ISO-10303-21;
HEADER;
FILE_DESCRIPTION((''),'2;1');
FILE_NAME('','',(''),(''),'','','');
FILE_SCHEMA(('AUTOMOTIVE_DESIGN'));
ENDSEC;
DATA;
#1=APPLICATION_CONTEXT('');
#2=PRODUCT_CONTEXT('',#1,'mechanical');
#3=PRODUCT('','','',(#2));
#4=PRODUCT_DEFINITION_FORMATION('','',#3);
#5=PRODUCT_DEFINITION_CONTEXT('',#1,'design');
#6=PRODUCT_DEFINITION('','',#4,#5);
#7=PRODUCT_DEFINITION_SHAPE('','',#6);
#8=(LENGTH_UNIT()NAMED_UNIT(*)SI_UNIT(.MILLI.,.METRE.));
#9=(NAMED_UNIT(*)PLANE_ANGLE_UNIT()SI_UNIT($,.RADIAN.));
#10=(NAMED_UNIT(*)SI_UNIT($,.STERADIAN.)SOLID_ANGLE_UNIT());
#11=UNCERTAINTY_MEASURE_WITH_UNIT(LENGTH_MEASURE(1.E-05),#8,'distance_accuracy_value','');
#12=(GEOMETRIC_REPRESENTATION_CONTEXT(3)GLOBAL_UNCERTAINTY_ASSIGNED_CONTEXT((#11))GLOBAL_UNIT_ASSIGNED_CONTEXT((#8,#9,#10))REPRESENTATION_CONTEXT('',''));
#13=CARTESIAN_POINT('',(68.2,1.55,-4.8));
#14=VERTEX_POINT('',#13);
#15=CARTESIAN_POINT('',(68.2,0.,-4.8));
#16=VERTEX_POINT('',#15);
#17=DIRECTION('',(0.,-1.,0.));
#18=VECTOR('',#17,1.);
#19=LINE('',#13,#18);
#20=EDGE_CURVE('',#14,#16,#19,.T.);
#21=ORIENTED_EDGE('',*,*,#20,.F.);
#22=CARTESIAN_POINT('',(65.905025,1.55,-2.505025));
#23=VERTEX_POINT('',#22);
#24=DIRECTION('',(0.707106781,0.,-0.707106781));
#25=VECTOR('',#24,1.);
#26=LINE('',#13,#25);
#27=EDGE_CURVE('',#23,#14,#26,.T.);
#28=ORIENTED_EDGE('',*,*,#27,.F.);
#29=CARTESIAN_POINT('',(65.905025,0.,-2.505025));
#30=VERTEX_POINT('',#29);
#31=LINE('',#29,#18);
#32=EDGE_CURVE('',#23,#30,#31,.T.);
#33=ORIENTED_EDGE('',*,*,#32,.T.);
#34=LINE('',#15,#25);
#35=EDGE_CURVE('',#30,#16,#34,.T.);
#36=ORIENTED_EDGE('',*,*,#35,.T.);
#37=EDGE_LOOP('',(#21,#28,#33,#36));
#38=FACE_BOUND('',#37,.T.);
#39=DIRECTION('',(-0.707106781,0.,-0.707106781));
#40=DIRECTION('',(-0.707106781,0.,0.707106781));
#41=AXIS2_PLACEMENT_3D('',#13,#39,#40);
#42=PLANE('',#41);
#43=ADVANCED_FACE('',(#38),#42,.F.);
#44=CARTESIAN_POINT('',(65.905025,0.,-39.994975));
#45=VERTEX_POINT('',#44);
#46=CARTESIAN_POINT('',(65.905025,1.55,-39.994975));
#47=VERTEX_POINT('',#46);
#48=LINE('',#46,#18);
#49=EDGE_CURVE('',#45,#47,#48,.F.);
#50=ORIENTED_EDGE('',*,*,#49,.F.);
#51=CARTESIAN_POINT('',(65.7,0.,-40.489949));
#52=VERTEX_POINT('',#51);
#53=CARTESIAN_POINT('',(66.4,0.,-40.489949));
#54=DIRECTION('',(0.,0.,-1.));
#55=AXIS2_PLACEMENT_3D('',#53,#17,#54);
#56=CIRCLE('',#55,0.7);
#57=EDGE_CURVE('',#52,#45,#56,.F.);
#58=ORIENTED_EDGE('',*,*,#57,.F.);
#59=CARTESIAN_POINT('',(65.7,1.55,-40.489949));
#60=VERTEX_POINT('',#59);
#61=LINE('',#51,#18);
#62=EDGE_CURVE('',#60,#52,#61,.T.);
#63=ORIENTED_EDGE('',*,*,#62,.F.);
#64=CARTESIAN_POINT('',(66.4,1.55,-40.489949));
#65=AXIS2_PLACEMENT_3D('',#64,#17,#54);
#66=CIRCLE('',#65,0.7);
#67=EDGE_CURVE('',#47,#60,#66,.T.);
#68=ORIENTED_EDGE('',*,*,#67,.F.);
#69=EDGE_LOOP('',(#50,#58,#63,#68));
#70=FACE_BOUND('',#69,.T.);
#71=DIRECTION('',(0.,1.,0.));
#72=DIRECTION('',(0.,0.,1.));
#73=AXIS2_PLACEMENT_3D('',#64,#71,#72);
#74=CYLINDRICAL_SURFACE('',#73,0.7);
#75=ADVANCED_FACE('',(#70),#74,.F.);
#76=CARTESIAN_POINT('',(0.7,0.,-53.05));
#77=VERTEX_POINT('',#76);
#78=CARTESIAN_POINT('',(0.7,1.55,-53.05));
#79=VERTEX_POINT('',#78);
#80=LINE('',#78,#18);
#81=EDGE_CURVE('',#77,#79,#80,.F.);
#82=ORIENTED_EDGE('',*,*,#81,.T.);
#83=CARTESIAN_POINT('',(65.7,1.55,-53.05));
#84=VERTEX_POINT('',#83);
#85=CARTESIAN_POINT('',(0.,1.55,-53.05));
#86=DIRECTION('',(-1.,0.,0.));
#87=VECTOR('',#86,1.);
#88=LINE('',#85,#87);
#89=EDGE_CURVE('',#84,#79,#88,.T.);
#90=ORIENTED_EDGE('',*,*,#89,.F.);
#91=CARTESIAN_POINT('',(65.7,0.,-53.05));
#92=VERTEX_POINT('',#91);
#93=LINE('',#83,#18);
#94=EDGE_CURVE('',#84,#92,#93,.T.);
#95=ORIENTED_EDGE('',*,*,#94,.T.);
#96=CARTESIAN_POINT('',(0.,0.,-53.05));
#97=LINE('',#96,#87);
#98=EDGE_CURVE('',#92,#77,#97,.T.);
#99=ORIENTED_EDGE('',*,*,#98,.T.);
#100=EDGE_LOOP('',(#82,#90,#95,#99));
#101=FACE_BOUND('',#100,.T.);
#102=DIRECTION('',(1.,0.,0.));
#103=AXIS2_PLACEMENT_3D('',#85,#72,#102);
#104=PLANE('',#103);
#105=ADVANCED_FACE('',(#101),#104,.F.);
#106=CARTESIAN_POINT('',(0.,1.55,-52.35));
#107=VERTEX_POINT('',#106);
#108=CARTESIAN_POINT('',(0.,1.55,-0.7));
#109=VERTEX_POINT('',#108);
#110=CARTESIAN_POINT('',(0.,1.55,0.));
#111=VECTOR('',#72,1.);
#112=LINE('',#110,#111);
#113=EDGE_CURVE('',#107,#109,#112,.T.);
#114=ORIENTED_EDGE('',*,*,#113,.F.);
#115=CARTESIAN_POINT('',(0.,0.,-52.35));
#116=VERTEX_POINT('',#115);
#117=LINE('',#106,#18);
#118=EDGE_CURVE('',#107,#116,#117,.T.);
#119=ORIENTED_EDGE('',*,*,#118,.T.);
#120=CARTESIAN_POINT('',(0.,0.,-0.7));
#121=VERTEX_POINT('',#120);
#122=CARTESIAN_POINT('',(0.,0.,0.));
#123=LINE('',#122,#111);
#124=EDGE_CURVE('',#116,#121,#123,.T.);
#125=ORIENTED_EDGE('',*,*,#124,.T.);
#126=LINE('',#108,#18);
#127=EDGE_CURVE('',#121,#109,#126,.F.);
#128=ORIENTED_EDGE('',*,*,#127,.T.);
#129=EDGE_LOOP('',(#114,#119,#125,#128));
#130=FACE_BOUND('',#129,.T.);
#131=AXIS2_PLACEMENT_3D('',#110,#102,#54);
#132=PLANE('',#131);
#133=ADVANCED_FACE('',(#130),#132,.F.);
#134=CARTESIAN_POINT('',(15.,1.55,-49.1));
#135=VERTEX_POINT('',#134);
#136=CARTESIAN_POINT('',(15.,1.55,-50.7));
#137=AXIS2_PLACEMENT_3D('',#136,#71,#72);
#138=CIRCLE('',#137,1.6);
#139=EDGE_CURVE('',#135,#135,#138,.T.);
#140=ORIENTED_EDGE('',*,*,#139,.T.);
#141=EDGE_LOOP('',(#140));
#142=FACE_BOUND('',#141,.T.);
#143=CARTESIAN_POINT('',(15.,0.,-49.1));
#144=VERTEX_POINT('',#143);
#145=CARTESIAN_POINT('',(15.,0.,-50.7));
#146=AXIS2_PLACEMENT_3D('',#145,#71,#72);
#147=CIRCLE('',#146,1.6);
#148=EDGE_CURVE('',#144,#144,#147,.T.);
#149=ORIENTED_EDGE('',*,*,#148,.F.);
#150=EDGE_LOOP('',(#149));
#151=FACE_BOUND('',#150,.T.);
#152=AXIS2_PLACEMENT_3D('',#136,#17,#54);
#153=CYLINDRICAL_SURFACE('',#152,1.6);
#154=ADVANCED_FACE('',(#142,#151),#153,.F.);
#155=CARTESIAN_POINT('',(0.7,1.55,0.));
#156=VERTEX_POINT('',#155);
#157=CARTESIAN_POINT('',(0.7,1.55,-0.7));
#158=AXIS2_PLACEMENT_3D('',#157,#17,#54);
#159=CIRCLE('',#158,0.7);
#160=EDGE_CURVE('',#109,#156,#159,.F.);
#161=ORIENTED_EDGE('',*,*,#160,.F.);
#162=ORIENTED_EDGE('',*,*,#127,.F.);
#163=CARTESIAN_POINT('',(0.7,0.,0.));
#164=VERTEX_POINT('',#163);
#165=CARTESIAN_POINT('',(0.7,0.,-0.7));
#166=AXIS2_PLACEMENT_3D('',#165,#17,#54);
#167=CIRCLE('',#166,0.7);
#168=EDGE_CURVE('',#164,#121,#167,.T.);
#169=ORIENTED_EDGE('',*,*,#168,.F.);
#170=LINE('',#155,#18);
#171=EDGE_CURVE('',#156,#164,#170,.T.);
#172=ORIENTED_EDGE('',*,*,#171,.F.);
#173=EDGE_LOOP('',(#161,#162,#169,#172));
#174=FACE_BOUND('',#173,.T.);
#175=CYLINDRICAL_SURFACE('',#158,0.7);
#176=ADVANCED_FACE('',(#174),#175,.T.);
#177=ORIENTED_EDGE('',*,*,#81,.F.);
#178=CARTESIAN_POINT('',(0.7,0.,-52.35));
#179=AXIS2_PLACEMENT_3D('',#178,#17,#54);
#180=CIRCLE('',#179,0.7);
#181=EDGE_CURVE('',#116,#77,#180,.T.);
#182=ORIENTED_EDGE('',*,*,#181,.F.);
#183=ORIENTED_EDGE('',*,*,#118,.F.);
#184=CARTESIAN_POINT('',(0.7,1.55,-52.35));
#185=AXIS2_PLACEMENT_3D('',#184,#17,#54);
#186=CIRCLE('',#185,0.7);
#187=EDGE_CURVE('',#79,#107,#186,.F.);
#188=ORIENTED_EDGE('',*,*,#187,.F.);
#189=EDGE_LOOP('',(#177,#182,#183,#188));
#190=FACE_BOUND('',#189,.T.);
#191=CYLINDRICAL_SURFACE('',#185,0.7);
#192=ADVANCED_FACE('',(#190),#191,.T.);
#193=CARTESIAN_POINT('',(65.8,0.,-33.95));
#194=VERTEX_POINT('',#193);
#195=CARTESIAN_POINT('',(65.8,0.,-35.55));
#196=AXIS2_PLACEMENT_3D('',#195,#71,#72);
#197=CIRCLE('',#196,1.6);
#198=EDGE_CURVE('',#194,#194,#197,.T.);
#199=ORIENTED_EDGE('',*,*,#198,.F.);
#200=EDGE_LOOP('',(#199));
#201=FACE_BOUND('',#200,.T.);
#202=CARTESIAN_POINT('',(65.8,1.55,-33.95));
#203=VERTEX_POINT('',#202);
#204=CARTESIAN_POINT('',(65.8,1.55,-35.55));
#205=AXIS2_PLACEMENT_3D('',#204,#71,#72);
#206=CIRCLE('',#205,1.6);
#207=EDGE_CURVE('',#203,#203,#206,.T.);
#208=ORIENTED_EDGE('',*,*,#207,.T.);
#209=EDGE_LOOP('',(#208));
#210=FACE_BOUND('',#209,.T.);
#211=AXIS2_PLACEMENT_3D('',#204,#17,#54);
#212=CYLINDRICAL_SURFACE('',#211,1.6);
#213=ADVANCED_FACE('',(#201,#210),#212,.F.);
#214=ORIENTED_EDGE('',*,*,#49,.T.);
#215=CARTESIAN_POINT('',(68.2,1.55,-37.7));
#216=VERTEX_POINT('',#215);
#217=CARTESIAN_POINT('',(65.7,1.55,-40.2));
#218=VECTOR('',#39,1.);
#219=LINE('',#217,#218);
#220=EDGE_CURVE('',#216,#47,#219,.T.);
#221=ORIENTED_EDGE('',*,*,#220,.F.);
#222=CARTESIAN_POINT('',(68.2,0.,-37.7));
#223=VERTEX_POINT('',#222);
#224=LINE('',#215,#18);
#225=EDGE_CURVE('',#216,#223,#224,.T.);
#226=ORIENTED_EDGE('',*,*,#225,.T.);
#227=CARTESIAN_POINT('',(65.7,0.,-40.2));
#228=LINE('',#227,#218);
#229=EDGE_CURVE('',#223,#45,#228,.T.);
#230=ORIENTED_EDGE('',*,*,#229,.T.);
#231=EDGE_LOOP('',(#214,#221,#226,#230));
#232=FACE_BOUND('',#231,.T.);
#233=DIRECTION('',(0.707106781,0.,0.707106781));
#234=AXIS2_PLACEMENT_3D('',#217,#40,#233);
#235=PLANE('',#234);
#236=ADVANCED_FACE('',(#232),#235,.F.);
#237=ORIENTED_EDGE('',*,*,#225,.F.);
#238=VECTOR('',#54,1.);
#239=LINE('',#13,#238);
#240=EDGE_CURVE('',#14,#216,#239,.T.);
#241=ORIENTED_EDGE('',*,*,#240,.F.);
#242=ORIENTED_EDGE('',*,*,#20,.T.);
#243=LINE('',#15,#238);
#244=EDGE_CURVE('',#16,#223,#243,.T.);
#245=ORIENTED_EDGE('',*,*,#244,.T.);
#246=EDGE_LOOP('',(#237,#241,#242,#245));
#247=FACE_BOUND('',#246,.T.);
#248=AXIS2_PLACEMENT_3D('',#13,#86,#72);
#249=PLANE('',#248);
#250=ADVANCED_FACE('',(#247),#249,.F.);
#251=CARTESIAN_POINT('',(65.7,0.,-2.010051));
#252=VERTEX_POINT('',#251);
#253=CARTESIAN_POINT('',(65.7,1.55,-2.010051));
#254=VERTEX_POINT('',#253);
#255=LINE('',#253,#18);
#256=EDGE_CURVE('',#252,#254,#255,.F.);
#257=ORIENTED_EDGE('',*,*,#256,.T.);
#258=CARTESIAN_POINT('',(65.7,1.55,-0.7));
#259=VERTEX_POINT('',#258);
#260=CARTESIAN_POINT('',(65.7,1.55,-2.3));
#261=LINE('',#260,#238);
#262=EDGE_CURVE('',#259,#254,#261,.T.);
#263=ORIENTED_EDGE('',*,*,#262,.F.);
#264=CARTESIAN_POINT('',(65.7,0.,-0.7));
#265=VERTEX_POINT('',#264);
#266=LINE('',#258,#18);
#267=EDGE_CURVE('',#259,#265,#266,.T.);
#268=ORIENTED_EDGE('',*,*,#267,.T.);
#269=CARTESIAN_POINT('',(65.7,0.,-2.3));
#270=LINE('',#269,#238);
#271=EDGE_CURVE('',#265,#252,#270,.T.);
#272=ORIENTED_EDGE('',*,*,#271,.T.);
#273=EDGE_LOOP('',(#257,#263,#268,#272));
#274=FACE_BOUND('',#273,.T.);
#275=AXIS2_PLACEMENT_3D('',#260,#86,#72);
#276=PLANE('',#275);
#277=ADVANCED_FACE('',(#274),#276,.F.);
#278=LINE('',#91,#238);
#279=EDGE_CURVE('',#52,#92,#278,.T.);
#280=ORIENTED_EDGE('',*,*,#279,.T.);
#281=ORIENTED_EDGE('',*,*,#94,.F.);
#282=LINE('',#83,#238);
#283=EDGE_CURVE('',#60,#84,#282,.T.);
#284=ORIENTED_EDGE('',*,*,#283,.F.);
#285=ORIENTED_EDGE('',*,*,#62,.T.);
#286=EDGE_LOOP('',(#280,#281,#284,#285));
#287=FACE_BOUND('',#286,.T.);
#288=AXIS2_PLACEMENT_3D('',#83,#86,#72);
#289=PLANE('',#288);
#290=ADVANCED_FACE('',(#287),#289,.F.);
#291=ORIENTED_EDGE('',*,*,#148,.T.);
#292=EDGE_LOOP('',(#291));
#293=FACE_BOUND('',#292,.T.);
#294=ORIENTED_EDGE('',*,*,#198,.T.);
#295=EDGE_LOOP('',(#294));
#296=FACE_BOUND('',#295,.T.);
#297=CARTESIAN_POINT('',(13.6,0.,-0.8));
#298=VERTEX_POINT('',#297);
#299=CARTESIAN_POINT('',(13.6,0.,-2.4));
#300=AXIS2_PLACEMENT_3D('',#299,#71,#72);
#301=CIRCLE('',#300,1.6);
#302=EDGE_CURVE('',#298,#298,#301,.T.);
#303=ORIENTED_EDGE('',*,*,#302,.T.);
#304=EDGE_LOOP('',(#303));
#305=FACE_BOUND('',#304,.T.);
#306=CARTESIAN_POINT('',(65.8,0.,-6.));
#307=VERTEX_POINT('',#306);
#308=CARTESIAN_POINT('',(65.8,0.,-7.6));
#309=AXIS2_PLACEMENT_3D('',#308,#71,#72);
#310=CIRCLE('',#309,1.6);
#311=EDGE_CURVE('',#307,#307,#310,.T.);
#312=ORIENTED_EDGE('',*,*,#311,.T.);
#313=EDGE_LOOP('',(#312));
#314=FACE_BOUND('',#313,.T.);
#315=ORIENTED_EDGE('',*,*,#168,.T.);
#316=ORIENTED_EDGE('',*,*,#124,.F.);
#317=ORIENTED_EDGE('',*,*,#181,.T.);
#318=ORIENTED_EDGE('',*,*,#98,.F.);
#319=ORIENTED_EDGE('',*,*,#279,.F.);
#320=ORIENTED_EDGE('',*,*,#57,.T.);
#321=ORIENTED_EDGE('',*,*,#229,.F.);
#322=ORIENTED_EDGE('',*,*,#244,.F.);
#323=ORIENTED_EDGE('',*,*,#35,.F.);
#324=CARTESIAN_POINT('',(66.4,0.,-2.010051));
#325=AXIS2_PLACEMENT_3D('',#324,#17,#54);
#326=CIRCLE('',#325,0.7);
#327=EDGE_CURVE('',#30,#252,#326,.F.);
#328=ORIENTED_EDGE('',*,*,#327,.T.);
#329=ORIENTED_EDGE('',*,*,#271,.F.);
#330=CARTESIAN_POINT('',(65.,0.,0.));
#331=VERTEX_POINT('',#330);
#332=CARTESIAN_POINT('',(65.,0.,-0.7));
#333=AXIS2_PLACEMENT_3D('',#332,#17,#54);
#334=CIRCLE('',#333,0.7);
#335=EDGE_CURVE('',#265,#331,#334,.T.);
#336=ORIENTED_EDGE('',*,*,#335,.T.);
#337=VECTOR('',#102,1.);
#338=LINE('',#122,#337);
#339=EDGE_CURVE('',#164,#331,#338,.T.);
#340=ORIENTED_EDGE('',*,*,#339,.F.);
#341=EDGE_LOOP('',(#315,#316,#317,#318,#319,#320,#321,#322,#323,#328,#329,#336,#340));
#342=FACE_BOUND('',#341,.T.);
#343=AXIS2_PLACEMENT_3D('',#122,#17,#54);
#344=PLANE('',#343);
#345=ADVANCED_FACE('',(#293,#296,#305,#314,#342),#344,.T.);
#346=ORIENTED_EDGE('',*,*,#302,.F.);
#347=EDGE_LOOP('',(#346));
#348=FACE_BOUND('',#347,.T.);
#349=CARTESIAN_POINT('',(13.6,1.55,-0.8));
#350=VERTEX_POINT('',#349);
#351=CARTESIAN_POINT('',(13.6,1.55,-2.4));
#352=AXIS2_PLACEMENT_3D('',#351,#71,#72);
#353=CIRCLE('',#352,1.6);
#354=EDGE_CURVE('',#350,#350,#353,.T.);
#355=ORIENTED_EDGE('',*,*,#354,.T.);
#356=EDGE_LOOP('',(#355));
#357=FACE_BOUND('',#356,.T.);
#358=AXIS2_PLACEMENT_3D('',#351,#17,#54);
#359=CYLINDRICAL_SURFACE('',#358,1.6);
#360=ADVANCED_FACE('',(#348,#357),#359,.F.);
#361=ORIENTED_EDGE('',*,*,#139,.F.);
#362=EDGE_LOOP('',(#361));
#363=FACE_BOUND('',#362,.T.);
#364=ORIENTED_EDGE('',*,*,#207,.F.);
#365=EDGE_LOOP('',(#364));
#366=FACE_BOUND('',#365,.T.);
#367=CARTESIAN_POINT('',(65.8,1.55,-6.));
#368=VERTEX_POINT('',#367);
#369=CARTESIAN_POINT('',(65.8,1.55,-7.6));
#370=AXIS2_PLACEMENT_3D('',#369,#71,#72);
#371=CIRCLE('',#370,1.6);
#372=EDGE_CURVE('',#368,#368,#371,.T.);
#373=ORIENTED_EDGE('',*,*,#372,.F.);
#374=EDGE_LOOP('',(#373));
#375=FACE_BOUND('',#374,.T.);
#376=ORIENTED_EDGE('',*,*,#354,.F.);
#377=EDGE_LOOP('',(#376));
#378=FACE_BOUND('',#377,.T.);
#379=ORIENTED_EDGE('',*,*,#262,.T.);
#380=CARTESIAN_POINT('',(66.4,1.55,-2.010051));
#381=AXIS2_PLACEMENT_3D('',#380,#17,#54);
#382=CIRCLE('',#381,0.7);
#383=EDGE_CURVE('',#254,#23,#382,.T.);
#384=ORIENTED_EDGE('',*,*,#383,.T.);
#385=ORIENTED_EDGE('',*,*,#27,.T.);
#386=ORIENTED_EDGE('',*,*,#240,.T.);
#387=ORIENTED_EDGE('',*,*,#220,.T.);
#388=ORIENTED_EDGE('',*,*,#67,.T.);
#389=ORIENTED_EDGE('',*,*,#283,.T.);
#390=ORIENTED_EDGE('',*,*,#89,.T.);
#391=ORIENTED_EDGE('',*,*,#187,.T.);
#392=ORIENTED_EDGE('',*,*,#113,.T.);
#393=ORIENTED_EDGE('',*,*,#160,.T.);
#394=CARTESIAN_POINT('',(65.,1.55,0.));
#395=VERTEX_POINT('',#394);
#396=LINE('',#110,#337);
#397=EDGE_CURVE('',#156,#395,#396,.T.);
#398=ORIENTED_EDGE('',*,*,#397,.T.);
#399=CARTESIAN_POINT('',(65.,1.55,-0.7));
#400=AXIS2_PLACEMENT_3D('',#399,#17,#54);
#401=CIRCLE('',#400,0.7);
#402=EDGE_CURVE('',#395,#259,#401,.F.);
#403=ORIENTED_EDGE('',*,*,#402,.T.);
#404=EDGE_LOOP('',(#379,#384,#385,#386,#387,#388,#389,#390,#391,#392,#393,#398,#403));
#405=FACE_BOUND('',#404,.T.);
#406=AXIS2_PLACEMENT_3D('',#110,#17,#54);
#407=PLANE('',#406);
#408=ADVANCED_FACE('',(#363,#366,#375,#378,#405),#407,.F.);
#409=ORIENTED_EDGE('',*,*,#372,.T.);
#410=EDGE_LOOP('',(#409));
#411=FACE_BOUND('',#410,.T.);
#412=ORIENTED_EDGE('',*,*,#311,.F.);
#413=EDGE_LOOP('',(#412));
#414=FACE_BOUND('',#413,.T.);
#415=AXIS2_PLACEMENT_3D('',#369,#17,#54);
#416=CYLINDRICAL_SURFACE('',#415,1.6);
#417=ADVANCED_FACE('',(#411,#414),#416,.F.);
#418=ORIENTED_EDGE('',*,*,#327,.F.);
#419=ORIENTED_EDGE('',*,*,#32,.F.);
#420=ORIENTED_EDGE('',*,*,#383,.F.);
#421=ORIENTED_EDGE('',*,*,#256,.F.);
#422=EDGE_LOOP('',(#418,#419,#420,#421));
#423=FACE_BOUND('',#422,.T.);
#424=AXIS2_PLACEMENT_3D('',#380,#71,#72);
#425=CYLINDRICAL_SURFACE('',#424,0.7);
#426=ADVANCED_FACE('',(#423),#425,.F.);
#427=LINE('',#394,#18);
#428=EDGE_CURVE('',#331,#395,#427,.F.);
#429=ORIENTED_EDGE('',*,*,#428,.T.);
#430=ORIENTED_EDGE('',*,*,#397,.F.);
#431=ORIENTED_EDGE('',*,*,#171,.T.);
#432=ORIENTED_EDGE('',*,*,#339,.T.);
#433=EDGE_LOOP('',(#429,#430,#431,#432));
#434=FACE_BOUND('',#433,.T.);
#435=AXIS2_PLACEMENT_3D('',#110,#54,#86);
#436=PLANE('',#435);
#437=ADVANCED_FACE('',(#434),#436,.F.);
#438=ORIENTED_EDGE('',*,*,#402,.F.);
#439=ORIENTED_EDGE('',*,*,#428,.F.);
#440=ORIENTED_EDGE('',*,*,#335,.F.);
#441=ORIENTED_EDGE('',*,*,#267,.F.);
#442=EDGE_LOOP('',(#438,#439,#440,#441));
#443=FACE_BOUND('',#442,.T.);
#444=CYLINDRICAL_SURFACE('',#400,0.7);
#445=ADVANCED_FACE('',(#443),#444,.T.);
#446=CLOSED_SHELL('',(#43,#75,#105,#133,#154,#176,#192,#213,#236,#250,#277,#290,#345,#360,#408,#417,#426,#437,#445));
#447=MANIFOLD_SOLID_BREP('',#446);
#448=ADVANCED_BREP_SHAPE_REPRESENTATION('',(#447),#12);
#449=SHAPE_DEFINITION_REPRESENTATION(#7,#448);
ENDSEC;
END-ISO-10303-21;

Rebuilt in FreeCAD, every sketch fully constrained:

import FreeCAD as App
import Part
import Sketcher


def edges_at(feature, points):
    """Names of the edges that pass closest to the given points."""
    edges = feature.Shape.Edges
    near = lambda p: min(range(len(edges)), key=lambda i: edges[i].distToShape(Part.Vertex(*p))[0])
    return sorted({f"Edge{near(p) + 1}" for p in points})


def add_polygon(sketch, points):
    """Adds a closed chain of lines whose ends are joined by coincident constraints."""
    first, n = sketch.GeometryCount, len(points)
    for a, b in zip(points, points[1:] + points[:1]):
        sketch.addGeometry(Part.LineSegment(App.Vector(*a, 0), App.Vector(*b, 0)), False)
    for i in range(n):
        sketch.addConstraint(Sketcher.Constraint("Coincident", first + i, 2, first + (i + 1) % n, 1))

doc = App.newDocument("Part")
body = doc.addObject("PartDesign::Body", "Body")

# Sketch on XZ plane
sketch1 = doc.addObject("Sketcher::SketchObject", "Sketch")
body.addObject(sketch1)
sketch1.AttachmentSupport = (doc.XZ_Plane, [""])
sketch1.MapMode = "FlatFace"
add_polygon(sketch1, [(65.7, -40.2), (65.7, -53.05), (0, -53.05), (0, 0), (65.7, 0), (65.7, -2.3), (68.2, -4.8), (68.2, -37.7)])  # lines 0-7
sketch1.addGeometry(Part.Circle(App.Vector(65.8, -7.6, 0), App.Vector(0, 0, 1), 1.6), False)  # 8
sketch1.addGeometry(Part.Circle(App.Vector(13.6, -2.4, 0), App.Vector(0, 0, 1), 1.6), False)  # 9
sketch1.addGeometry(Part.Circle(App.Vector(65.8, -35.55, 0), App.Vector(0, 0, 1), 1.6), False)  # 10
sketch1.addGeometry(Part.Circle(App.Vector(15, -50.7, 0), App.Vector(0, 0, 1), 1.6), False)  # 11
sketch1.addConstraint(Sketcher.Constraint("Vertical", 0))
sketch1.addConstraint(Sketcher.Constraint("Horizontal", 1))
sketch1.addConstraint(Sketcher.Constraint("Vertical", 2))
sketch1.addConstraint(Sketcher.Constraint("Horizontal", 3))
sketch1.addConstraint(Sketcher.Constraint("Vertical", 4))
sketch1.addConstraint(Sketcher.Constraint("Vertical", 6))
sketch1.addConstraint(Sketcher.Constraint("Coincident", 2, 2, -1, 1))
sketch1.addConstraint(Sketcher.Constraint("Equal", 8, 9))
sketch1.addConstraint(Sketcher.Constraint("Equal", 9, 10))
sketch1.addConstraint(Sketcher.Constraint("Equal", 10, 11))
sketch1.addConstraint(Sketcher.Constraint("Perpendicular", 5, 7))
sketch1.addConstraint(Sketcher.Constraint("Vertical", 8, 3, 10, 3))
sketch1.addConstraint(Sketcher.Constraint("Vertical", 0, 2, 3, 2))
sketch1.addConstraint(Sketcher.Constraint("Equal", 5, 7))
sketch1.addConstraint(Sketcher.Constraint("Diameter", 8, 3.2))
sketch1.addConstraint(Sketcher.Constraint("DistanceX", 1, 2, 1, 1, 65.7))
sketch1.addConstraint(Sketcher.Constraint("DistanceY", 4, 2, 4, 1, 2.3))
sketch1.addConstraint(Sketcher.Constraint("DistanceY", 6, 2, 6, 1, 32.9))
sketch1.addConstraint(Sketcher.Constraint("DistanceX", -1, 1, 11, 3, 15.0))
sketch1.addConstraint(Sketcher.Constraint("DistanceY", 0, 2, 0, 1, 12.85))
sketch1.addConstraint(Sketcher.Constraint("DistanceY", 2, 1, 2, 2, 53.05))
sketch1.addConstraint(Sketcher.Constraint("DistanceX", -1, 1, 8, 3, 65.8))
sketch1.addConstraint(Sketcher.Constraint("DistanceY", 8, 3, -1, 1, 7.6))
sketch1.addConstraint(Sketcher.Constraint("DistanceX", -1, 1, 9, 3, 13.6))
sketch1.addConstraint(Sketcher.Constraint("DistanceY", 9, 3, -1, 1, 2.4))
sketch1.addConstraint(Sketcher.Constraint("DistanceY", 11, 3, -1, 1, 50.7))
sketch1.addConstraint(Sketcher.Constraint("DistanceY", 0, 2, 10, 3, 17.5))
pad1 = doc.addObject("PartDesign::Pad", "Pad")
body.addObject(pad1)
pad1.Profile = sketch1
pad1.Length = 1.55
pad1.Reversed = True
doc.recompute()

fillet = doc.addObject("PartDesign::Fillet", "Fillet")
body.addObject(fillet)
fillet.Base = (pad1, edges_at(pad1, [
    (0, 0.775, -53.05),
    (65.7, 0.775, -40.2),
    (65.7, 0.775, -2.3),
    (65.7, 0.775, 0),
    (0, 0.775, 0),
]))
fillet.Radius = 0.7

doc.recompute()
